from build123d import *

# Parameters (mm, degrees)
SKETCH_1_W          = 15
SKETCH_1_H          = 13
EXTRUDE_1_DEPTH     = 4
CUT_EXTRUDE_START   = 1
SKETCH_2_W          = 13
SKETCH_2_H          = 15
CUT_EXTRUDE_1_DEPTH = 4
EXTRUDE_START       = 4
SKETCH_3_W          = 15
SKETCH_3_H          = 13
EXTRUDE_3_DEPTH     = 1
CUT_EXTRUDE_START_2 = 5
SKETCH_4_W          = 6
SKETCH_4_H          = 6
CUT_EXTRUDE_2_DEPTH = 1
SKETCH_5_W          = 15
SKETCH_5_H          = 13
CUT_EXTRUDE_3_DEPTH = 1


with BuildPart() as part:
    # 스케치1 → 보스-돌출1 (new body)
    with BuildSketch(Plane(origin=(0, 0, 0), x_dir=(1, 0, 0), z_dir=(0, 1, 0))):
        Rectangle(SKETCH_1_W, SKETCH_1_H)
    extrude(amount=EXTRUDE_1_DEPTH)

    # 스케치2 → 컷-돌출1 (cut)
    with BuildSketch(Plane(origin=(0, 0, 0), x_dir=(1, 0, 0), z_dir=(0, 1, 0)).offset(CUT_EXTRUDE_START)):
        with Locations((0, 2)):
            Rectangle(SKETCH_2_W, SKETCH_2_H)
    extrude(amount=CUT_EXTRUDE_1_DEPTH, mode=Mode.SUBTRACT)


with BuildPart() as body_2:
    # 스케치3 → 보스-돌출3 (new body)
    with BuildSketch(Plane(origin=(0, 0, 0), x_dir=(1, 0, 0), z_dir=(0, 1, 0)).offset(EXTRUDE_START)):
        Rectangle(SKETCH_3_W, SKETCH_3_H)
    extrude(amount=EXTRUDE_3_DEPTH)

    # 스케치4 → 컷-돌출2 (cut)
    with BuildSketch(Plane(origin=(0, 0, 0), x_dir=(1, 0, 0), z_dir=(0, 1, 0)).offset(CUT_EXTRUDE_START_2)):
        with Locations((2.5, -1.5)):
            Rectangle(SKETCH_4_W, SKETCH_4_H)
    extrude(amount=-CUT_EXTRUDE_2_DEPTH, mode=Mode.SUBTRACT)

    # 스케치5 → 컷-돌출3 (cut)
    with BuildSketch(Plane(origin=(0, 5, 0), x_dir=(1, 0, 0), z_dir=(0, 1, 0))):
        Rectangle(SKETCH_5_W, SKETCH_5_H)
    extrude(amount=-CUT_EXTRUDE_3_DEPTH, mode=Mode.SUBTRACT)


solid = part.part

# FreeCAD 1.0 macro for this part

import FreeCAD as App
import Part
import Sketcher
from FreeCAD import Vector
Q = App.Units.Quantity


def add_polygon(sketch, points):
    """Adds a closed chain of lines whose ends are joined by coincident constraints."""
    first, n = sketch.GeometryCount, len(points)
    for a, b in zip(points, points[1:] + points[:1]):
        sketch.addGeometry(Part.LineSegment(App.Vector(*a, 0), App.Vector(*b, 0)), False)
    for i in range(n):
        sketch.addConstraint(Sketcher.Constraint("Coincident", first + i, 2, first + (i + 1) % n, 1))

doc = App.newDocument("Part")
body = doc.addObject("PartDesign::Body", "Body")

# Sketch on XZ plane
sketch1 = body.newObject("Sketcher::SketchObject", "Sketch")
sketch1.AttachmentSupport = (doc.getObject("XZ_Plane"), [""])
sketch1.MapMode = "FlatFace"
add_polygon(sketch1, [(-8, -6), (-8, 6), (8, 6), (8, -6)])  # lines 0-3
sketch1.addConstraint([
    Sketcher.Constraint("Vertical", 0),
    Sketcher.Constraint("Horizontal", 1),
    Sketcher.Constraint("Vertical", 2),
    Sketcher.Constraint("Horizontal", 3),
    Sketcher.Constraint("Symmetric", 0, 2, 2, 2, -1, 1),
    Sketcher.Constraint("DistanceX", 1, 1, 1, 2, Q("15 mm")),
    Sketcher.Constraint("DistanceY", 0, 1, 0, 2, Q("13 mm")),
])
pad1 = body.newObject("PartDesign::Pad", "Pad")
pad1.Profile = sketch1
pad1.Length = 4
pad1.Reversed = True

# Sketch on XZ plane
sketch2 = body.newObject("Sketcher::SketchObject", "Sketch001")
sketch2.AttachmentSupport = (doc.getObject("XZ_Plane"), [""])
sketch2.MapMode = "FlatFace"
sketch2.AttachmentOffset = App.Placement(Vector(0, 0, -1), App.Rotation())
add_polygon(sketch2, [(-6, -10), (-6, 6), (6, 6), (6, -10)])  # lines 0-3
sketch2.addConstraint([
    Sketcher.Constraint("Vertical", 0),
    Sketcher.Constraint("Horizontal", 1),
    Sketcher.Constraint("Vertical", 2),
    Sketcher.Constraint("Horizontal", 3),
    Sketcher.Constraint("DistanceX", 1, 1, 1, 2, Q("13 mm")),
    Sketcher.Constraint("DistanceY", 0, 1, 0, 2, Q("15 mm")),
    Sketcher.Constraint("DistanceX", 0, 2, -1, 1, Q("6.5 mm")),
    Sketcher.Constraint("DistanceY", -1, 1, 0, 2, Q("5.5 mm")),
])
pocket1 = body.newObject("PartDesign::Pocket", "Pocket")
pocket1.Profile = sketch2
pocket1.Length = 4
body2 = doc.addObject("PartDesign::Body", "Body001")

# Sketch on XZ plane
sketch3 = body2.newObject("Sketcher::SketchObject", "Sketch002")
sketch3.AttachmentSupport = (doc.getObject("XZ_Plane001"), [""])
sketch3.MapMode = "FlatFace"
sketch3.AttachmentOffset = App.Placement(Vector(0, 0, -4), App.Rotation())
add_polygon(sketch3, [(-8, -6), (-8, 6), (8, 6), (8, -6)])  # lines 0-3
sketch3.addConstraint([
    Sketcher.Constraint("Vertical", 0),
    Sketcher.Constraint("Horizontal", 1),
    Sketcher.Constraint("Vertical", 2),
    Sketcher.Constraint("Horizontal", 3),
    Sketcher.Constraint("Symmetric", 0, 2, 2, 2, -1, 1),
    Sketcher.Constraint("DistanceX", 1, 1, 1, 2, Q("15 mm")),
    Sketcher.Constraint("DistanceY", 0, 1, 0, 2, Q("13 mm")),
])
pad2 = body2.newObject("PartDesign::Pad", "Pad001")
pad2.Profile = sketch3
pad2.Length = 1
pad2.Reversed = True

# Sketch on XZ plane
sketch4 = body2.newObject("Sketcher::SketchObject", "Sketch003")
sketch4.AttachmentSupport = (doc.getObject("XZ_Plane001"), [""])
sketch4.MapMode = "FlatFace"
sketch4.AttachmentOffset = App.Placement(Vector(0, 0, -5), App.Rotation())
add_polygon(sketch4, [(0, -2), (0, 4), (6, 4), (6, -2)])  # lines 0-3
sketch4.addConstraint([
    Sketcher.Constraint("Vertical", 0),
    Sketcher.Constraint("Horizontal", 1),
    Sketcher.Constraint("Vertical", 2),
    Sketcher.Constraint("Horizontal", 3),
    Sketcher.Constraint("Equal", 3, 0),
    Sketcher.Constraint("DistanceX", 1, 1, 1, 2, Q("6 mm")),
    Sketcher.Constraint("DistanceX", 0, 2, -1, 1, Q("0.5 mm")),
    Sketcher.Constraint("DistanceY", -1, 1, 0, 2, Q("4.5 mm")),
])
pocket2 = body2.newObject("PartDesign::Pocket", "Pocket001")
pocket2.Profile = sketch4
pocket2.Length = 1
pocket2.Reversed = True

# Sketch on XZ plane
sketch5 = body2.newObject("Sketcher::SketchObject", "Sketch004")
sketch5.AttachmentSupport = (doc.getObject("XZ_Plane001"), [""])
sketch5.MapMode = "FlatFace"
sketch5.AttachmentOffset = App.Placement(Vector(0, 0, -5), App.Rotation())
add_polygon(sketch5, [(-8, -6), (-8, 6), (8, 6), (8, -6)])  # lines 0-3
sketch5.addConstraint([
    Sketcher.Constraint("Vertical", 0),
    Sketcher.Constraint("Horizontal", 1),
    Sketcher.Constraint("Vertical", 2),
    Sketcher.Constraint("Horizontal", 3),
    Sketcher.Constraint("Symmetric", 0, 2, 2, 2, -1, 1),
    Sketcher.Constraint("DistanceX", 1, 1, 1, 2, Q("15 mm")),
    Sketcher.Constraint("DistanceY", 0, 1, 0, 2, Q("13 mm")),
])
pocket3 = body2.newObject("PartDesign::Pocket", "Pocket002")
pocket3.Profile = sketch5
pocket3.Length = 1
pocket3.Reversed = True

doc.recompute()
